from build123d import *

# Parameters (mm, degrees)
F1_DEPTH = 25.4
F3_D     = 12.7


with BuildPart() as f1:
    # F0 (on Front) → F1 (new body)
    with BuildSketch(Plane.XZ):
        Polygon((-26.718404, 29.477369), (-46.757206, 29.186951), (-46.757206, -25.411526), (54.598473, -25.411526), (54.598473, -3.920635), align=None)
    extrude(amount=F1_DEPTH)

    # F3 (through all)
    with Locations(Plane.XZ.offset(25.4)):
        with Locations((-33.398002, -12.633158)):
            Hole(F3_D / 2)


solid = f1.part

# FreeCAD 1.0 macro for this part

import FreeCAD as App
import Part
import Sketcher

V = App.Vector
Q = App.Units.Quantity


def add_polygon(sketch, points):
    """Adds a closed chain of lines whose ends are joined by coincident constraints."""
    first, n = sketch.GeometryCount, len(points)
    for a, b in zip(points, points[1:] + points[:1]):
        sketch.addGeometry(Part.LineSegment(App.Vector(*a, 0), App.Vector(*b, 0)), False)
    for i in range(n):
        sketch.addConstraint(Sketcher.Constraint("Coincident", first + i, 2, first + (i + 1) % n, 1))

doc = App.newDocument("Part")
params = doc.addObject("Spreadsheet::Sheet", "Params")
for row, (alias, value) in enumerate([
    ("pad1_length", "1 in"),
    ("sketch2_diameter", "0.5 in"),
    ("hole_diameter", "0.5 in"),
], start=1):
    params.set(f"A{row}", alias)
    params.set(f"B{row}", "=" + value)
    params.setAlias(f"B{row}", alias)

body = doc.addObject("PartDesign::Body", "Body")

sketch1 = doc.addObject("Sketcher::SketchObject", "Sketch")
body.addObject(sketch1)
sketch1.AttachmentSupport = (doc.XZ_Plane, [""])
sketch1.MapMode = "FlatFace"
add_polygon(sketch1, [(-27, 29), (-47, 29), (-47, -25), (55, -25), (55, -4)])
sketch1.addConstraint([
    Sketcher.Constraint("Vertical", 1),
    Sketcher.Constraint("Horizontal", 2),
    Sketcher.Constraint("Vertical", 3),
    Sketcher.Constraint("DistanceX", 2, 1, 2, 2, Q("101.355679 mm")),
    Sketcher.Constraint("DistanceY", 3, 1, 3, 2, Q("21.490891 mm")),
    Sketcher.Constraint("DistanceX", 0, 2, 4, 2, Q("20.038802 mm")),
    Sketcher.Constraint("DistanceY", 1, 2, 1, 1, Q("54.598477 mm")),
    Sketcher.Constraint("DistanceY", -1, 1, 0, 2, Q("29.186951 mm")),
    Sketcher.Constraint("DistanceY", -1, 1, 4, 2, Q("29.477369 mm")),
    Sketcher.Constraint("DistanceX", 0, 2, -1, 1, Q("46.757206 mm")),
])
pad1 = doc.addObject("PartDesign::Pad", "Pad")
body.addObject(pad1)
pad1.Profile = sketch1
pad1.setExpression("Length", "Params.pad1_length")

sketch2 = doc.addObject("Sketcher::SketchObject", "Sketch001")
body.addObject(sketch2)
sketch2.AttachmentSupport = (doc.XZ_Plane, [""])
sketch2.MapMode = "FlatFace"
sketch2.AttachmentOffset = App.Placement(V(0, 0, 1 * 25.4), App.Rotation())
sketch2.addGeometry(Part.Circle(V(-33, -13, 0), V(0, 0, 1), 6), False)
sketch2.addConstraint([
    Sketcher.Constraint("Diameter", 0, Q("0.5 in")),
    Sketcher.Constraint("DistanceX", 0, 3, -1, 1, Q("33.398002 mm")),
    Sketcher.Constraint("DistanceY", 0, 3, -1, 1, Q("12.633158 mm")),
])
sketch2.setExpression("Constraints[0]", "Params.sketch2_diameter")
doc.recompute()
hole = doc.addObject("PartDesign::Hole", "Hole")
body.addObject(hole)
hole.Profile = sketch2
hole.ThreadType = "None"
hole.setExpression("Diameter", "Params.hole_diameter")
hole.DepthType = "ThroughAll"

doc.recompute()
